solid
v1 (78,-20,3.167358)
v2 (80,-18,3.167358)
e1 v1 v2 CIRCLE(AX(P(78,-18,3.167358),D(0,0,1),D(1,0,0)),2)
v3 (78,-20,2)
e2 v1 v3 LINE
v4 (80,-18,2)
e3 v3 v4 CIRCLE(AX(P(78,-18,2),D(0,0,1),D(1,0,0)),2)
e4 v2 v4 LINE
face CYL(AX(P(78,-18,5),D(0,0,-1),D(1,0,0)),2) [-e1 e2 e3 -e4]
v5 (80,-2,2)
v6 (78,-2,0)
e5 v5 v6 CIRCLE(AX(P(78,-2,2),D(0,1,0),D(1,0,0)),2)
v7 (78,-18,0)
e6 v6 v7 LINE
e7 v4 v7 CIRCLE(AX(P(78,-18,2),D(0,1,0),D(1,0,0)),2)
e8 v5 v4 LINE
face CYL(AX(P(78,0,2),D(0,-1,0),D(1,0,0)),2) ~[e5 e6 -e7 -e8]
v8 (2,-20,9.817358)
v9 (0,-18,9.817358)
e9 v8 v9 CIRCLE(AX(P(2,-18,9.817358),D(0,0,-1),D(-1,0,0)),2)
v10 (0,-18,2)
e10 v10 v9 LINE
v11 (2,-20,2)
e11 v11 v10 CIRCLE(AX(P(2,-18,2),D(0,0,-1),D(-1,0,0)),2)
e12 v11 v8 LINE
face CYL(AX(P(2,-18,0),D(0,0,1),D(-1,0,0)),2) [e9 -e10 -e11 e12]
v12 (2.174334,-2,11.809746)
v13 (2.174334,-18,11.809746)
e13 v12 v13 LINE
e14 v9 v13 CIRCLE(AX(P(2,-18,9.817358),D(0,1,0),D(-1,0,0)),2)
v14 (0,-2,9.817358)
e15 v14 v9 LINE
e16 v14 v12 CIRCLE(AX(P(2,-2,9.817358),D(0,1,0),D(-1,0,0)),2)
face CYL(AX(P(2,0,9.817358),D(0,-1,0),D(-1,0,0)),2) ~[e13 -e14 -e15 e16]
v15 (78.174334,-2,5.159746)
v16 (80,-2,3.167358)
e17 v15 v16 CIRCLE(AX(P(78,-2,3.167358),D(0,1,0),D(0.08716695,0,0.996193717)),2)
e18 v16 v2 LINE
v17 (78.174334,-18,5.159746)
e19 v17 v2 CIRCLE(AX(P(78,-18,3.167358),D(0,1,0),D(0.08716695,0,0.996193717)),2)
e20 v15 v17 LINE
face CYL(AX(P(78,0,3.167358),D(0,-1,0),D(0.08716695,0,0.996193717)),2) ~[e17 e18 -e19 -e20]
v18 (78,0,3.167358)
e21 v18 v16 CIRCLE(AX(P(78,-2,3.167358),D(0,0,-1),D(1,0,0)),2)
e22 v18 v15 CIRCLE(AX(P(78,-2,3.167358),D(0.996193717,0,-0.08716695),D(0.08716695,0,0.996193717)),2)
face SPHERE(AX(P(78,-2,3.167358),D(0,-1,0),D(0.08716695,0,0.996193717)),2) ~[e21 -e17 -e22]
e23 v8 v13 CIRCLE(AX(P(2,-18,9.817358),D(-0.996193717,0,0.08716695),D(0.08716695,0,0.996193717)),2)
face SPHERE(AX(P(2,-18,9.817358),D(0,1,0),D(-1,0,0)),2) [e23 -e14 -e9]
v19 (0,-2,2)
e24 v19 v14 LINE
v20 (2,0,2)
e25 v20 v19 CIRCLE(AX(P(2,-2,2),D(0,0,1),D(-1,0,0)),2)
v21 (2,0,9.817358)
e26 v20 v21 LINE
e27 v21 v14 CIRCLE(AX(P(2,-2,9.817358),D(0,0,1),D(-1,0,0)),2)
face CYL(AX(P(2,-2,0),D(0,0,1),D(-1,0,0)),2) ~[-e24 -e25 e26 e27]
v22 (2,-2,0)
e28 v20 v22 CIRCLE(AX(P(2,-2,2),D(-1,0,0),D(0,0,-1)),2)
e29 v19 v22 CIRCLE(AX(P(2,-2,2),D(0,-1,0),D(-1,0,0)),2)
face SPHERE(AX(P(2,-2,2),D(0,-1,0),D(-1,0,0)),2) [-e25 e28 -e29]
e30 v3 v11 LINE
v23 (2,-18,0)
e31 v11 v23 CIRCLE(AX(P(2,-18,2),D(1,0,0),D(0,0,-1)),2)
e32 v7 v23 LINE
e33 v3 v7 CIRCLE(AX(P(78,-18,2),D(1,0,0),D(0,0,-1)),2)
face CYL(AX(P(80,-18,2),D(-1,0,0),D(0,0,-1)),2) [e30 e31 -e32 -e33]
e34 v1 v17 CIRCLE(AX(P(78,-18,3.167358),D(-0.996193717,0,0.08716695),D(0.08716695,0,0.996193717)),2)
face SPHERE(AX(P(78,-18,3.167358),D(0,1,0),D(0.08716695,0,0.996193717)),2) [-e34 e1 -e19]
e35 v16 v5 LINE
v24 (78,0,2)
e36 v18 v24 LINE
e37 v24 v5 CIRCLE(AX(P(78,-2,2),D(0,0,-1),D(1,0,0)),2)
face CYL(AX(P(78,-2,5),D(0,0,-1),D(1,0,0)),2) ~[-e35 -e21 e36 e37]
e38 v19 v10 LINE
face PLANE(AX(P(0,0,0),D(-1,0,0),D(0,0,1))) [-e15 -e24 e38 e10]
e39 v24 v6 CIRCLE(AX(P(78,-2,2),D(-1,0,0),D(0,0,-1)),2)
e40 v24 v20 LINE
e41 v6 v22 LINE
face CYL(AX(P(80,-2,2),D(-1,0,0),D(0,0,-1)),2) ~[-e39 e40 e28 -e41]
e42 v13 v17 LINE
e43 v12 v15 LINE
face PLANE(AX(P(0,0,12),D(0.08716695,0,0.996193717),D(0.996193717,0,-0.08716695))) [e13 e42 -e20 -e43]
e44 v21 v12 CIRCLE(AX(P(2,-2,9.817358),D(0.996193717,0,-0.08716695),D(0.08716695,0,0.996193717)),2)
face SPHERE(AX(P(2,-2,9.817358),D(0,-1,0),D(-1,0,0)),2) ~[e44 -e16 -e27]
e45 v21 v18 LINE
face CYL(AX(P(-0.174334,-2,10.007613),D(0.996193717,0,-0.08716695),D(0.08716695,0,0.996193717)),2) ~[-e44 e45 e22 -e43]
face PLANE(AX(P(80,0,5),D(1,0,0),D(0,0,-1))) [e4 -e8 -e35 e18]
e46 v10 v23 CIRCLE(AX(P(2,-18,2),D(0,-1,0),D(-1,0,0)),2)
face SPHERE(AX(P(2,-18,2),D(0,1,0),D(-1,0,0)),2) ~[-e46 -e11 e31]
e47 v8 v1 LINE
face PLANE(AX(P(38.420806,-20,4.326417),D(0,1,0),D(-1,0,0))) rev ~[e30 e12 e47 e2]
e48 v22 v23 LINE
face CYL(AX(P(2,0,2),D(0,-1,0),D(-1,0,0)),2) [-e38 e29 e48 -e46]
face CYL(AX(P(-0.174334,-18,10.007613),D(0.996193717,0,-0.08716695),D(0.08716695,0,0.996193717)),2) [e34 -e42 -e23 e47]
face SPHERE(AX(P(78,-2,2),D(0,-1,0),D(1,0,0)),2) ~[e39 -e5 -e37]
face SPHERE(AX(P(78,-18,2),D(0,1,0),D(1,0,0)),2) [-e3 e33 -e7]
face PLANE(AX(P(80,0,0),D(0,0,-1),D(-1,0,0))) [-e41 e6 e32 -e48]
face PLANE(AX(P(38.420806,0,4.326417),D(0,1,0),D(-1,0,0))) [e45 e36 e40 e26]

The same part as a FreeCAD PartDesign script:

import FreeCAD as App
import Part
import Sketcher


def add_polygon(sketch, points):
    """Adds a closed chain of lines whose ends are joined by coincident constraints."""
    first, n = sketch.GeometryCount, len(points)
    for a, b in zip(points, points[1:] + points[:1]):
        sketch.addGeometry(Part.LineSegment(App.Vector(*a, 0), App.Vector(*b, 0)), False)
    for i in range(n):
        sketch.addConstraint(Sketcher.Constraint("Coincident", first + i, 2, first + (i + 1) % n, 1))

doc = App.newDocument("Part")
params = doc.addObject("Spreadsheet::Sheet", "Params")
for row, (alias, value) in enumerate([
    ("sketch1_width", "80 mm"),
    ("sketch1_height", "12 mm"),
    ("sketch1_height2", "5 mm"),
    ("pad1_length", "20 mm"),
    ("fillet_radius", "2 mm"),
], start=1):
    params.set(f"A{row}", alias)
    params.set(f"B{row}", "=" + value)
    params.setAlias(f"B{row}", alias)

body = doc.addObject("PartDesign::Body", "Body")

sketch1 = body.newObject("Sketcher::SketchObject", "Sketch")
sketch1.AttachmentSupport = (doc.getObject("XZ_Plane"), [""])
sketch1.MapMode = "FlatFace"
add_polygon(sketch1, [(0, 12), (0, 0), (80, 0), (80, 5)])
sketch1.addConstraint(Sketcher.Constraint("Vertical", 0))
sketch1.addConstraint(Sketcher.Constraint("Horizontal", 1))
sketch1.addConstraint(Sketcher.Constraint("Vertical", 2))
sketch1.addConstraint(Sketcher.Constraint("Coincident", 0, 2, -1, 1))
sketch1.addConstraint(Sketcher.Constraint("DistanceX", 1, 1, 1, 2, 80.0))
sketch1.addConstraint(Sketcher.Constraint("DistanceY", 0, 2, 0, 1, 12.0))
sketch1.addConstraint(Sketcher.Constraint("DistanceY", 2, 1, 2, 2, 5.0))
sketch1.setExpression("Constraints[8]", "Params.sketch1_width")
sketch1.setExpression("Constraints[9]", "Params.sketch1_height")
sketch1.setExpression("Constraints[10]", "Params.sketch1_height2")
pad1 = body.newObject("PartDesign::Pad", "Pad")
pad1.Profile = sketch1
pad1.setExpression("Length", "Params.pad1_length")
doc.recompute()

fillet = body.newObject("PartDesign::Fillet", "Fillet")
fillet.Base = (pad1, ["Edge1"])
fillet.UseAllEdges = True
fillet.setExpression("Radius", "Params.fillet_radius")

doc.recompute()
